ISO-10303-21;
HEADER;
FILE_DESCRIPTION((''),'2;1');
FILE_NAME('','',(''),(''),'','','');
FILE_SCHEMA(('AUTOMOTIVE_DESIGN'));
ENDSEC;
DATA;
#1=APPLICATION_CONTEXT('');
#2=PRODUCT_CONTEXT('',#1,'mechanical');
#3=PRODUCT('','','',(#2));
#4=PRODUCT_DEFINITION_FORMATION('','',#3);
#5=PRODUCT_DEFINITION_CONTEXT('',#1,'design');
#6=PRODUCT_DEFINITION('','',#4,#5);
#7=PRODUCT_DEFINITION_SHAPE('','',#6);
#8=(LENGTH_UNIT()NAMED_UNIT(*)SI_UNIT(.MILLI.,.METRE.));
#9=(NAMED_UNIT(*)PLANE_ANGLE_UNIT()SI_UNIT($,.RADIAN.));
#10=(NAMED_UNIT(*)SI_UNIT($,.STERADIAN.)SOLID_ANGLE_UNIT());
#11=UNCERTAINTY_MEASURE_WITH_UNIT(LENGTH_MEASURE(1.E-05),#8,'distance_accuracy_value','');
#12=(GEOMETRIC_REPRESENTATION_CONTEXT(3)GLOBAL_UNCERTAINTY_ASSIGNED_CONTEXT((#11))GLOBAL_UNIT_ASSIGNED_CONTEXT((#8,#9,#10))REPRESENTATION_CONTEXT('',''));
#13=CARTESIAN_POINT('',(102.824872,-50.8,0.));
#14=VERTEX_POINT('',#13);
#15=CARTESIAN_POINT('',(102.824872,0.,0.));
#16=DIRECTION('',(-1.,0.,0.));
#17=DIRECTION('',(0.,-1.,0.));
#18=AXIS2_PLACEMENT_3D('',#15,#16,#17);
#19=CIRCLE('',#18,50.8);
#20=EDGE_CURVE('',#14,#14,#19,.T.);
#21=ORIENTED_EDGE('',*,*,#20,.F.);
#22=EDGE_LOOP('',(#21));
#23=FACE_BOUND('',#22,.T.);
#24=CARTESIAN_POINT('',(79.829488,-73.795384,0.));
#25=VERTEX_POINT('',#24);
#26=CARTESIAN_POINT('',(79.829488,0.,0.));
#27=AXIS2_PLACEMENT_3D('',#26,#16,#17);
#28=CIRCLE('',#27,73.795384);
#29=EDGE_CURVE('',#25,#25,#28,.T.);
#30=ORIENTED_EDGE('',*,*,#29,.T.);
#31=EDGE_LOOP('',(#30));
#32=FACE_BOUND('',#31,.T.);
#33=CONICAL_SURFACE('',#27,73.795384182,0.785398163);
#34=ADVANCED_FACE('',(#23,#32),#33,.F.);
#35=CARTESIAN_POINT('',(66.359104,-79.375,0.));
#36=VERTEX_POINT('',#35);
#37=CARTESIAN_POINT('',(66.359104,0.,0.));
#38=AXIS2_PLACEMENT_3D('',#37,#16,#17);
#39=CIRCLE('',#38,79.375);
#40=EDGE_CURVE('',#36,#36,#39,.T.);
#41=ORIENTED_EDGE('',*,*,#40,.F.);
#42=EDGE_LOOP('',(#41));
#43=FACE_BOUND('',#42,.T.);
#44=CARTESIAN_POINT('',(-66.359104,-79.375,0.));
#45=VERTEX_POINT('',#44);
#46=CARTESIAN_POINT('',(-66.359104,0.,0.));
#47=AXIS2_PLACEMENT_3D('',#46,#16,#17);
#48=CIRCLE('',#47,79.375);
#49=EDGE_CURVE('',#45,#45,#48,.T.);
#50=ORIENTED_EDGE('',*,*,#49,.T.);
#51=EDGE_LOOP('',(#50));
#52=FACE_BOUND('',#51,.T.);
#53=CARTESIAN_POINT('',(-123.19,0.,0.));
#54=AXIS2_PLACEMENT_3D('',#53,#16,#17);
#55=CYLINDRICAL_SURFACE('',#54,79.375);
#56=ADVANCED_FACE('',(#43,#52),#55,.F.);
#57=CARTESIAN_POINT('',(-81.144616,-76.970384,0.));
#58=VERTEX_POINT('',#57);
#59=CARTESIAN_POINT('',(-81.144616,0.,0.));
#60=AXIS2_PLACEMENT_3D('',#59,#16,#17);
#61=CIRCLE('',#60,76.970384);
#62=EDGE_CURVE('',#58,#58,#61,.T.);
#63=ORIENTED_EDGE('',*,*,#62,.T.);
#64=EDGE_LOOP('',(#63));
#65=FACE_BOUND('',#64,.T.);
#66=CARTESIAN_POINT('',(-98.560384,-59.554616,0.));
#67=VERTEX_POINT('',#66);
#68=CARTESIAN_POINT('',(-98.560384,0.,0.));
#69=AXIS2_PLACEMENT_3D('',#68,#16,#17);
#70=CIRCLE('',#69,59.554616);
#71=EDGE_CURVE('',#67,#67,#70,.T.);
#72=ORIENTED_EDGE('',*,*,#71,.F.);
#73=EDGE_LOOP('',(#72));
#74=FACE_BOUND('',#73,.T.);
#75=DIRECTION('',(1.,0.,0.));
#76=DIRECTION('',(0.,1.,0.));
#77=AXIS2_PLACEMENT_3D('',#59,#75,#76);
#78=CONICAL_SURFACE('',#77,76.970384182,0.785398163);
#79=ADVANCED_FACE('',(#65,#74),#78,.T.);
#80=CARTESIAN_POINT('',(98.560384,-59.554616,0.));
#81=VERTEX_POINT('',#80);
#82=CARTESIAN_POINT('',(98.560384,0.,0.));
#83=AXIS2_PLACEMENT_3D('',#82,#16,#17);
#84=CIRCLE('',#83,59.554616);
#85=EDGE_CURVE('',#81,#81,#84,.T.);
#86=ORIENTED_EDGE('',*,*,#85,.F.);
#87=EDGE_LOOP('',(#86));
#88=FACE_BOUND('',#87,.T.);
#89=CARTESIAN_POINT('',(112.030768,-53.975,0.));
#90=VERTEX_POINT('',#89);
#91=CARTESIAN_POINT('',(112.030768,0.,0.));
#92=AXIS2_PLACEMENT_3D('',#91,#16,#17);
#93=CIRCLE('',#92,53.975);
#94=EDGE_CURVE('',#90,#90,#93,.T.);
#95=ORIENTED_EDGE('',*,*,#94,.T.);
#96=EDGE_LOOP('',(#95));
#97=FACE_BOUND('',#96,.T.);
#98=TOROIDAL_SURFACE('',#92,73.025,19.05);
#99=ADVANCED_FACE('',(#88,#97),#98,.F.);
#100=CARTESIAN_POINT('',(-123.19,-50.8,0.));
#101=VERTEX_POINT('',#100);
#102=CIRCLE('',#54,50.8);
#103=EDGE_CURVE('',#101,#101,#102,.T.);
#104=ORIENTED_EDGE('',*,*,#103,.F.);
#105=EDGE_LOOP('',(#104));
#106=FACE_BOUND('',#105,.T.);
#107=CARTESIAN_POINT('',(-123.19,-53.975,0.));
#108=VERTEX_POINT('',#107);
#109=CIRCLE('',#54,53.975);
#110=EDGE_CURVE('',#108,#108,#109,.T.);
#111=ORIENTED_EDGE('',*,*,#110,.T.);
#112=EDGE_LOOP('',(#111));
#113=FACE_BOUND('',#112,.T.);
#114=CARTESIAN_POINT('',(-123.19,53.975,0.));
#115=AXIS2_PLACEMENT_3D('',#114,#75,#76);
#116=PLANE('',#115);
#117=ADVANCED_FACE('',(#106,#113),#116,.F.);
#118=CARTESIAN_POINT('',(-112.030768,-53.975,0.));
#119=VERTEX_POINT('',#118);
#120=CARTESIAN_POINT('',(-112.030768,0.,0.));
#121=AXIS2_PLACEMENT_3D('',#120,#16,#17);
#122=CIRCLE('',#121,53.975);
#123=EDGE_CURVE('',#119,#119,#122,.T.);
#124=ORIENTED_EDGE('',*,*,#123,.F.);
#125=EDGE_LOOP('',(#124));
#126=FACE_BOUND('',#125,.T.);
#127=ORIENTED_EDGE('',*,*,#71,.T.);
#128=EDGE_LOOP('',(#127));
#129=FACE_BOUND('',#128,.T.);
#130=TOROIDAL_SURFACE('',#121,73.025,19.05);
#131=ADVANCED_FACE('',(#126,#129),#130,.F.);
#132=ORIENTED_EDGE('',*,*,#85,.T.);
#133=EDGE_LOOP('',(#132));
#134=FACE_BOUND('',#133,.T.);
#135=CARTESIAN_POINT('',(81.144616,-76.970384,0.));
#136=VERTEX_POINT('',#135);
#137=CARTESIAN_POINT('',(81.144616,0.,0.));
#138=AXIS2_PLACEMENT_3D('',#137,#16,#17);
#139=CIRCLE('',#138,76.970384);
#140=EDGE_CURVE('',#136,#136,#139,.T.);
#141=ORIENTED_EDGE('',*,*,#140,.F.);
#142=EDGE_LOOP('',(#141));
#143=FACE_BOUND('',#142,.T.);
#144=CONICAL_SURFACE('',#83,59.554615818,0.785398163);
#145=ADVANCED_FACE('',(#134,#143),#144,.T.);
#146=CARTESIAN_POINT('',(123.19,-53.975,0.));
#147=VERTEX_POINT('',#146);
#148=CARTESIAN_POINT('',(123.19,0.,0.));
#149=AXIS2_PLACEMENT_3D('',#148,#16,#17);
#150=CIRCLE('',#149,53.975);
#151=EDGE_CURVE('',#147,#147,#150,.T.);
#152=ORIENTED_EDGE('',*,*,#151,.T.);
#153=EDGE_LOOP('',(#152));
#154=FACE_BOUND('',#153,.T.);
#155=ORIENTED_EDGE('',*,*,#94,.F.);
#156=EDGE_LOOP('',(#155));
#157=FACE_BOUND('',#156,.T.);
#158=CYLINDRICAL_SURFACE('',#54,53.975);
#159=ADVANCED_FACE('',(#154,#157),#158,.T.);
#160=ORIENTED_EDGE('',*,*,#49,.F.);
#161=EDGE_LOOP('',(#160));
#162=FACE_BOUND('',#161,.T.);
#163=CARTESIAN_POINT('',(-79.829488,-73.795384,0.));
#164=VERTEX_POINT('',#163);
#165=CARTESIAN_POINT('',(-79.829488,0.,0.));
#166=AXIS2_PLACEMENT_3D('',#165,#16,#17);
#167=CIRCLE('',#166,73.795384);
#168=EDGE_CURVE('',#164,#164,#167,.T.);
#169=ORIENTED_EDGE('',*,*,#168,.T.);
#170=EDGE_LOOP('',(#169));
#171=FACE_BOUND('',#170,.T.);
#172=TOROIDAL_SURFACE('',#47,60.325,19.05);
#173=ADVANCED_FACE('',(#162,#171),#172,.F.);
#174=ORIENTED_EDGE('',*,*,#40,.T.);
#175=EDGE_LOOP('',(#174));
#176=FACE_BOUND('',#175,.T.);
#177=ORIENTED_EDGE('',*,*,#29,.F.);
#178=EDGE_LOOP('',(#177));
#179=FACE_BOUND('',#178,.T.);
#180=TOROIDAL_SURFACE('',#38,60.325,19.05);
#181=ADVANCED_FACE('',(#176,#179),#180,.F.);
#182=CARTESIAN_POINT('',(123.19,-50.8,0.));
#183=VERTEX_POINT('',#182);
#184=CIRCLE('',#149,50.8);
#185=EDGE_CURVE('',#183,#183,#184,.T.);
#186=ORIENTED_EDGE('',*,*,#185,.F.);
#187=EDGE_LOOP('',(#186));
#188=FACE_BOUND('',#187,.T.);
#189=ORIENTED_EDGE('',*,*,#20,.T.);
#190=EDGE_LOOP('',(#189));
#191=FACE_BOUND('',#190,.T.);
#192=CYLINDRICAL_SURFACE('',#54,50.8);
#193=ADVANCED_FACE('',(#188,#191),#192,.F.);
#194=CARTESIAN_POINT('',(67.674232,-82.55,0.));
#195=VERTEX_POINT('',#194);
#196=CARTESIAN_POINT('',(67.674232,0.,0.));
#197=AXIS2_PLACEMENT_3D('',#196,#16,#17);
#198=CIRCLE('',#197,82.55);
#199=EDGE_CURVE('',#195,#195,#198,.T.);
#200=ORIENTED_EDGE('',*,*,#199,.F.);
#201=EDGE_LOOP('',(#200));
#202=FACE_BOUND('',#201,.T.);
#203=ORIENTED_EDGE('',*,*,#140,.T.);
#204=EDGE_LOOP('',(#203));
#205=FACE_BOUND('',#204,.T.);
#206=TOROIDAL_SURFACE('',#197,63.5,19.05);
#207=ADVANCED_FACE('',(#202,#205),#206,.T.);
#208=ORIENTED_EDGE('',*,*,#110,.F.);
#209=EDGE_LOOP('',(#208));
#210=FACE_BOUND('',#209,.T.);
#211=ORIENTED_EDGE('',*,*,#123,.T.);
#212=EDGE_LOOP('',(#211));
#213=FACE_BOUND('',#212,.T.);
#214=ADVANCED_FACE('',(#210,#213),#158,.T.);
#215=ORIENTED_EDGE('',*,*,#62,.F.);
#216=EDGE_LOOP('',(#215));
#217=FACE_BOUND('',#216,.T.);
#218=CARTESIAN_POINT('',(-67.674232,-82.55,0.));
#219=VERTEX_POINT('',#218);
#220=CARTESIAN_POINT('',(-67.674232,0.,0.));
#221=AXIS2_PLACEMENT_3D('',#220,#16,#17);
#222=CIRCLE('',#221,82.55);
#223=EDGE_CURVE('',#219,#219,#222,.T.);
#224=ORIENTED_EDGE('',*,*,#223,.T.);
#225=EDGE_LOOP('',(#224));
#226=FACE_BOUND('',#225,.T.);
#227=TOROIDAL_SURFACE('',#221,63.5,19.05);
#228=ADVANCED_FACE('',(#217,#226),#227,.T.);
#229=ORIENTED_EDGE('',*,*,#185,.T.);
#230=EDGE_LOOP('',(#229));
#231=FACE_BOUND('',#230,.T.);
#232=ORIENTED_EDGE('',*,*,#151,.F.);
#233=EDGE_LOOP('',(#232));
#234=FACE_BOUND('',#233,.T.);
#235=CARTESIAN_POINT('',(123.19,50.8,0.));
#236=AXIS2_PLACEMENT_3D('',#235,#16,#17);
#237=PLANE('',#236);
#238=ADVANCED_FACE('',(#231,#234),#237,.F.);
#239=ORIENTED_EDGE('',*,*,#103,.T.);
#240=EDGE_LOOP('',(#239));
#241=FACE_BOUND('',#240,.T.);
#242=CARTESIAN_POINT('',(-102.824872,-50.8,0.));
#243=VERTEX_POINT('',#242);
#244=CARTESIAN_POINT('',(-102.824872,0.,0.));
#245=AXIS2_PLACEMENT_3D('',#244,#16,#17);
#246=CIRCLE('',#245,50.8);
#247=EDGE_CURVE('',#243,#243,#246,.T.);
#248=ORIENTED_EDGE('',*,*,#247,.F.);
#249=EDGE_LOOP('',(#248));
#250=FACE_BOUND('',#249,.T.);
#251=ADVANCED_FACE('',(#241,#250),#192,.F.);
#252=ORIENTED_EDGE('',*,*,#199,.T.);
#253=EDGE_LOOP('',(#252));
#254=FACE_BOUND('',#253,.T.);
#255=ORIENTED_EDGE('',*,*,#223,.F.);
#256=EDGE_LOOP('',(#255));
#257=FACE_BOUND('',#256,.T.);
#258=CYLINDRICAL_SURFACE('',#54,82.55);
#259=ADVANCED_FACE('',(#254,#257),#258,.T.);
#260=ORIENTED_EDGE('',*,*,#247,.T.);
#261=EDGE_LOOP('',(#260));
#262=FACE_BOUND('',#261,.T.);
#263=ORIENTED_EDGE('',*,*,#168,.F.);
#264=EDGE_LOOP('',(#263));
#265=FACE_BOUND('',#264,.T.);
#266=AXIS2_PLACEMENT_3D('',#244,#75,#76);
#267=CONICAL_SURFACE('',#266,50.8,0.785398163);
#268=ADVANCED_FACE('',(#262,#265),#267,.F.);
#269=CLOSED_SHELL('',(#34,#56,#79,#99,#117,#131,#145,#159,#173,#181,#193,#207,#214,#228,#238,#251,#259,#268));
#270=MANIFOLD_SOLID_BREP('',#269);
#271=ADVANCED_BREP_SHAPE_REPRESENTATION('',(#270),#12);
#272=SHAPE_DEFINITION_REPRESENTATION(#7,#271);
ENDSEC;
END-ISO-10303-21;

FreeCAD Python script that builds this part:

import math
import FreeCAD as App
import Part
import Sketcher
from FreeCAD import Vector
Q = App.Units.Quantity

doc = App.newDocument("Part")
params = doc.addObject("Spreadsheet::Sheet", "Params")
for row, (alias, value) in enumerate([
    ("sketch1_radius", "0.75 in"),
    ("sketch1_height", "0.125 in"),
    ("revolution_angle", "360 deg"),
], start=1):
    params.set(f"A{row}", alias)
    params.set(f"B{row}", "=" + value)
    params.setAlias(f"B{row}", alias)

body = doc.addObject("PartDesign::Body", "Body")

# Sketch on XY plane
sketch1 = body.newObject("Sketcher::SketchObject", "Sketch")
sketch1.AttachmentSupport = (doc.getObject("XY_Plane"), [""])
sketch1.MapMode = "FlatFace"
sketch1.addGeometry(Part.LineSegment(Vector(-123.2, 54, 0), Vector(-123.2, 50.8, 0)), False)
sketch1.addGeometry(Part.LineSegment(Vector(-123.2, 50.8, 0), Vector(-102.8, 50.8, 0)), False)
sketch1.addGeometry(Part.LineSegment(Vector(-102.8, 50.8, 0), Vector(-79.8, 73.8, 0)), False)
sketch1.addGeometry(Part.ArcOfCircle(Part.Circle(Vector(-66.4, 60.3, 0), Vector(0, 0, 1), 19.1), math.radians(90), math.radians(135)), False)
sketch1.addGeometry(Part.LineSegment(Vector(-66.4, 79.4, 0), Vector(66.4, 79.4, 0)), False)
sketch1.addGeometry(Part.ArcOfCircle(Part.Circle(Vector(66.4, 60.3, 0), Vector(0, 0, 1), 19.1), math.radians(45), math.radians(90)), False)
sketch1.addGeometry(Part.LineSegment(Vector(79.8, 73.8, 0), Vector(102.8, 50.8, 0)), False)
sketch1.addGeometry(Part.LineSegment(Vector(102.8, 50.8, 0), Vector(123.2, 50.8, 0)), False)
sketch1.addGeometry(Part.LineSegment(Vector(123.2, 50.8, 0), Vector(123.2, 54, 0)), False)
sketch1.addGeometry(Part.LineSegment(Vector(123.2, 54, 0), Vector(112, 54, 0)), False)
sketch1.addGeometry(Part.ArcOfCircle(Part.Circle(Vector(112, 73, 0), Vector(0, 0, 1), 19.1), math.radians(-135), math.radians(-90)), False)
sketch1.addGeometry(Part.LineSegment(Vector(98.6, 59.6, 0), Vector(81.1, 77, 0)), False)
sketch1.addGeometry(Part.ArcOfCircle(Part.Circle(Vector(67.7, 63.5, 0), Vector(0, 0, 1), 19.1), math.radians(45), math.radians(90)), False)
sketch1.addGeometry(Part.LineSegment(Vector(67.7, 82.5, 0), Vector(-67.7, 82.5, 0)), False)
sketch1.addGeometry(Part.ArcOfCircle(Part.Circle(Vector(-67.7, 63.5, 0), Vector(0, 0, 1), 19.1), math.radians(90), math.radians(135)), False)
sketch1.addGeometry(Part.LineSegment(Vector(-81.1, 77, 0), Vector(-98.6, 59.6, 0)), False)
sketch1.addGeometry(Part.ArcOfCircle(Part.Circle(Vector(-112, 73, 0), Vector(0, 0, 1), 19.1), math.radians(-90), math.radians(-45)), False)
sketch1.addGeometry(Part.LineSegment(Vector(-112, 54, 0), Vector(-123.2, 54, 0)), False)
sketch1.addConstraint(Sketcher.Constraint("Coincident", 0, 2, 1, 1))
sketch1.addConstraint(Sketcher.Constraint("Coincident", 1, 2, 2, 1))
sketch1.addConstraint(Sketcher.Constraint("Tangent", 2, 2, 3, 2))
sketch1.addConstraint(Sketcher.Constraint("Tangent", 3, 1, 4, 1))
sketch1.addConstraint(Sketcher.Constraint("Tangent", 4, 2, 5, 2))
sketch1.addConstraint(Sketcher.Constraint("Tangent", 5, 1, 6, 1))
sketch1.addConstraint(Sketcher.Constraint("Coincident", 6, 2, 7, 1))
sketch1.addConstraint(Sketcher.Constraint("Coincident", 7, 2, 8, 1))
sketch1.addConstraint(Sketcher.Constraint("Coincident", 8, 2, 9, 1))
sketch1.addConstraint(Sketcher.Constraint("Tangent", 9, 2, 10, 2))
sketch1.addConstraint(Sketcher.Constraint("Tangent", 10, 1, 11, 1))
sketch1.addConstraint(Sketcher.Constraint("Tangent", 11, 2, 12, 1))
sketch1.addConstraint(Sketcher.Constraint("Tangent", 12, 2, 13, 1))
sketch1.addConstraint(Sketcher.Constraint("Tangent", 13, 2, 14, 1))
sketch1.addConstraint(Sketcher.Constraint("Tangent", 14, 2, 15, 1))
sketch1.addConstraint(Sketcher.Constraint("Tangent", 15, 2, 16, 2))
sketch1.addConstraint(Sketcher.Constraint("Tangent", 16, 1, 17, 1))
sketch1.addConstraint(Sketcher.Constraint("Coincident", 17, 2, 0, 1))
sketch1.addConstraint(Sketcher.Constraint("Vertical", 0))
sketch1.addConstraint(Sketcher.Constraint("Horizontal", 1))
sketch1.addConstraint(Sketcher.Constraint("Horizontal", 4))
sketch1.addConstraint(Sketcher.Constraint("Horizontal", 7))
sketch1.addConstraint(Sketcher.Constraint("Vertical", 8))
sketch1.addConstraint(Sketcher.Constraint("Horizontal", 9))
sketch1.addConstraint(Sketcher.Constraint("Horizontal", 13))
sketch1.addConstraint(Sketcher.Constraint("Horizontal", 17))
sketch1.addConstraint(Sketcher.Constraint("Equal", 3, 5))
sketch1.addConstraint(Sketcher.Constraint("Equal", 5, 10))
sketch1.addConstraint(Sketcher.Constraint("Equal", 10, 12))
sketch1.addConstraint(Sketcher.Constraint("Equal", 12, 14))
sketch1.addConstraint(Sketcher.Constraint("Equal", 14, 16))
sketch1.addConstraint(Sketcher.Constraint("Symmetric", 10, 3, 16, 3, -2))
sketch1.addConstraint(Sketcher.Constraint("Symmetric", 2, 2, 5, 1, -2))
sketch1.addConstraint(Sketcher.Constraint("Symmetric", 0, 2, 7, 2, -2))
sketch1.addConstraint(Sketcher.Constraint("Perpendicular", 2, 6))
sketch1.addConstraint(Sketcher.Constraint("Parallel", 6, 11))
sketch1.addConstraint(Sketcher.Constraint("Perpendicular", 11, 15))
sketch1.addConstraint(Sketcher.Constraint("Radius", 3, Q("0.75 in")))
sketch1.addConstraint(Sketcher.Constraint("DistanceY", -1, 1, 0, 2, Q("2 in")))
sketch1.addConstraint(Sketcher.Constraint("DistanceY", -1, 1, 12, 3, Q("2.5 in")))
sketch1.addConstraint(Sketcher.Constraint("DistanceY", 5, 3, 10, 3, Q("0.5 in")))
sketch1.addConstraint(Sketcher.Constraint("DistanceY", 0, 2, 0, 1, Q("0.125 in")))
sketch1.addConstraint(Sketcher.Constraint("DistanceX", 0, 2, -1, 1, Q("4.85 in")))
sketch1.addConstraint(Sketcher.Constraint("DistanceX", 14, 3, 10, 3, Q("7.075 in")))
sketch1.addConstraint(Sketcher.Constraint("DistanceX", 1, 1, 1, 2, Q("20.365128 mm")))
sketch1.setExpression("Constraints[37]", "Params.sketch1_radius")
sketch1.setExpression("Constraints[41]", "Params.sketch1_height")
revolution = body.newObject("PartDesign::Revolution", "Revolution")
revolution.Profile = sketch1
revolution.ReferenceAxis = (sketch1, ["H_Axis"])
revolution.setExpression("Angle", "Params.revolution_angle")

doc.recompute()
